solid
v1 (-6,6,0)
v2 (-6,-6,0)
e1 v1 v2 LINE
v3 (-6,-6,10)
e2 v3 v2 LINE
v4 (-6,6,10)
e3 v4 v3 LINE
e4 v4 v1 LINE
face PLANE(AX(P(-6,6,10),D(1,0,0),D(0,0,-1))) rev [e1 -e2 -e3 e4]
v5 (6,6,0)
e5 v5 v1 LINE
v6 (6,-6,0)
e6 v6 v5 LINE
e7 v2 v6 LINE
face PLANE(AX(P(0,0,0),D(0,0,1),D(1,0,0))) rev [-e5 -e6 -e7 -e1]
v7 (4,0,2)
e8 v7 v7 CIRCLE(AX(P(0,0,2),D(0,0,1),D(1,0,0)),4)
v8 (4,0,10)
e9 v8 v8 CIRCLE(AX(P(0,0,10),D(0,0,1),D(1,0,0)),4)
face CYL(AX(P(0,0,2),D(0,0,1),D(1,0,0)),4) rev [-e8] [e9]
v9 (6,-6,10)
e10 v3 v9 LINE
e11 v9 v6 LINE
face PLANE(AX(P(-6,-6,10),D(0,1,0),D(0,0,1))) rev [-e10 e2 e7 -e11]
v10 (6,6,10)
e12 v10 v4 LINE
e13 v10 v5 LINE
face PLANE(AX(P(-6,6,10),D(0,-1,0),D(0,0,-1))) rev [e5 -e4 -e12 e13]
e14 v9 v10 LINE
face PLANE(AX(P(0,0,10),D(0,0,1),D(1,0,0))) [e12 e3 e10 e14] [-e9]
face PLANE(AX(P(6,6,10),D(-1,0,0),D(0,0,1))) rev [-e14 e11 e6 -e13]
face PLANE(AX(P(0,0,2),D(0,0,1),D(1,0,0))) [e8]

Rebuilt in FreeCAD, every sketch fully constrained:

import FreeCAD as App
import Part
import Sketcher
from FreeCAD import Vector


def add_polygon(sketch, points):
    """Adds a closed chain of lines whose ends are joined by coincident constraints."""
    first, n = sketch.GeometryCount, len(points)
    for a, b in zip(points, points[1:] + points[:1]):
        sketch.addGeometry(Part.LineSegment(App.Vector(*a, 0), App.Vector(*b, 0)), False)
    for i in range(n):
        sketch.addConstraint(Sketcher.Constraint("Coincident", first + i, 2, first + (i + 1) % n, 1))

doc = App.newDocument("Part")
body = doc.addObject("PartDesign::Body", "Body")

sketch1 = body.newObject("Sketcher::SketchObject", "Sketch")
sketch1.AttachmentSupport = (doc.getObject("XY_Plane"), [""])
sketch1.MapMode = "FlatFace"
add_polygon(sketch1, [(-6, 6), (-6, -6), (6, -6), (6, 6)])
sketch1.addConstraint([
    Sketcher.Constraint("Vertical", 0),
    Sketcher.Constraint("Horizontal", 1),
    Sketcher.Constraint("Vertical", 2),
    Sketcher.Constraint("Horizontal", 3),
    Sketcher.Constraint("Symmetric", 0, 2, 2, 2, -1, 1),
    Sketcher.Constraint("Equal", 3, 0),
    Sketcher.Constraint("DistanceX", 1, 1, 1, 2, 12.0),
])
pad1 = body.newObject("PartDesign::Pad", "Pad")
pad1.Profile = sketch1
pad1.Length = 10

sketch2 = body.newObject("Sketcher::SketchObject", "Sketch001")
sketch2.AttachmentSupport = (doc.getObject("XY_Plane"), [""])
sketch2.MapMode = "FlatFace"
sketch2.AttachmentOffset = App.Placement(Vector(0, 0, 10), App.Rotation())
sketch2.addGeometry(Part.Circle(Vector(0, 0, 0), Vector(0, 0, 1), 4), False)
sketch2.addConstraint([
    Sketcher.Constraint("Coincident", 0, 3, -1, 1),
    Sketcher.Constraint("Diameter", 0, 8.0),
])
pocket1 = body.newObject("PartDesign::Pocket", "Pocket")
pocket1.Profile = sketch2
pocket1.Length = 8

doc.recompute()
